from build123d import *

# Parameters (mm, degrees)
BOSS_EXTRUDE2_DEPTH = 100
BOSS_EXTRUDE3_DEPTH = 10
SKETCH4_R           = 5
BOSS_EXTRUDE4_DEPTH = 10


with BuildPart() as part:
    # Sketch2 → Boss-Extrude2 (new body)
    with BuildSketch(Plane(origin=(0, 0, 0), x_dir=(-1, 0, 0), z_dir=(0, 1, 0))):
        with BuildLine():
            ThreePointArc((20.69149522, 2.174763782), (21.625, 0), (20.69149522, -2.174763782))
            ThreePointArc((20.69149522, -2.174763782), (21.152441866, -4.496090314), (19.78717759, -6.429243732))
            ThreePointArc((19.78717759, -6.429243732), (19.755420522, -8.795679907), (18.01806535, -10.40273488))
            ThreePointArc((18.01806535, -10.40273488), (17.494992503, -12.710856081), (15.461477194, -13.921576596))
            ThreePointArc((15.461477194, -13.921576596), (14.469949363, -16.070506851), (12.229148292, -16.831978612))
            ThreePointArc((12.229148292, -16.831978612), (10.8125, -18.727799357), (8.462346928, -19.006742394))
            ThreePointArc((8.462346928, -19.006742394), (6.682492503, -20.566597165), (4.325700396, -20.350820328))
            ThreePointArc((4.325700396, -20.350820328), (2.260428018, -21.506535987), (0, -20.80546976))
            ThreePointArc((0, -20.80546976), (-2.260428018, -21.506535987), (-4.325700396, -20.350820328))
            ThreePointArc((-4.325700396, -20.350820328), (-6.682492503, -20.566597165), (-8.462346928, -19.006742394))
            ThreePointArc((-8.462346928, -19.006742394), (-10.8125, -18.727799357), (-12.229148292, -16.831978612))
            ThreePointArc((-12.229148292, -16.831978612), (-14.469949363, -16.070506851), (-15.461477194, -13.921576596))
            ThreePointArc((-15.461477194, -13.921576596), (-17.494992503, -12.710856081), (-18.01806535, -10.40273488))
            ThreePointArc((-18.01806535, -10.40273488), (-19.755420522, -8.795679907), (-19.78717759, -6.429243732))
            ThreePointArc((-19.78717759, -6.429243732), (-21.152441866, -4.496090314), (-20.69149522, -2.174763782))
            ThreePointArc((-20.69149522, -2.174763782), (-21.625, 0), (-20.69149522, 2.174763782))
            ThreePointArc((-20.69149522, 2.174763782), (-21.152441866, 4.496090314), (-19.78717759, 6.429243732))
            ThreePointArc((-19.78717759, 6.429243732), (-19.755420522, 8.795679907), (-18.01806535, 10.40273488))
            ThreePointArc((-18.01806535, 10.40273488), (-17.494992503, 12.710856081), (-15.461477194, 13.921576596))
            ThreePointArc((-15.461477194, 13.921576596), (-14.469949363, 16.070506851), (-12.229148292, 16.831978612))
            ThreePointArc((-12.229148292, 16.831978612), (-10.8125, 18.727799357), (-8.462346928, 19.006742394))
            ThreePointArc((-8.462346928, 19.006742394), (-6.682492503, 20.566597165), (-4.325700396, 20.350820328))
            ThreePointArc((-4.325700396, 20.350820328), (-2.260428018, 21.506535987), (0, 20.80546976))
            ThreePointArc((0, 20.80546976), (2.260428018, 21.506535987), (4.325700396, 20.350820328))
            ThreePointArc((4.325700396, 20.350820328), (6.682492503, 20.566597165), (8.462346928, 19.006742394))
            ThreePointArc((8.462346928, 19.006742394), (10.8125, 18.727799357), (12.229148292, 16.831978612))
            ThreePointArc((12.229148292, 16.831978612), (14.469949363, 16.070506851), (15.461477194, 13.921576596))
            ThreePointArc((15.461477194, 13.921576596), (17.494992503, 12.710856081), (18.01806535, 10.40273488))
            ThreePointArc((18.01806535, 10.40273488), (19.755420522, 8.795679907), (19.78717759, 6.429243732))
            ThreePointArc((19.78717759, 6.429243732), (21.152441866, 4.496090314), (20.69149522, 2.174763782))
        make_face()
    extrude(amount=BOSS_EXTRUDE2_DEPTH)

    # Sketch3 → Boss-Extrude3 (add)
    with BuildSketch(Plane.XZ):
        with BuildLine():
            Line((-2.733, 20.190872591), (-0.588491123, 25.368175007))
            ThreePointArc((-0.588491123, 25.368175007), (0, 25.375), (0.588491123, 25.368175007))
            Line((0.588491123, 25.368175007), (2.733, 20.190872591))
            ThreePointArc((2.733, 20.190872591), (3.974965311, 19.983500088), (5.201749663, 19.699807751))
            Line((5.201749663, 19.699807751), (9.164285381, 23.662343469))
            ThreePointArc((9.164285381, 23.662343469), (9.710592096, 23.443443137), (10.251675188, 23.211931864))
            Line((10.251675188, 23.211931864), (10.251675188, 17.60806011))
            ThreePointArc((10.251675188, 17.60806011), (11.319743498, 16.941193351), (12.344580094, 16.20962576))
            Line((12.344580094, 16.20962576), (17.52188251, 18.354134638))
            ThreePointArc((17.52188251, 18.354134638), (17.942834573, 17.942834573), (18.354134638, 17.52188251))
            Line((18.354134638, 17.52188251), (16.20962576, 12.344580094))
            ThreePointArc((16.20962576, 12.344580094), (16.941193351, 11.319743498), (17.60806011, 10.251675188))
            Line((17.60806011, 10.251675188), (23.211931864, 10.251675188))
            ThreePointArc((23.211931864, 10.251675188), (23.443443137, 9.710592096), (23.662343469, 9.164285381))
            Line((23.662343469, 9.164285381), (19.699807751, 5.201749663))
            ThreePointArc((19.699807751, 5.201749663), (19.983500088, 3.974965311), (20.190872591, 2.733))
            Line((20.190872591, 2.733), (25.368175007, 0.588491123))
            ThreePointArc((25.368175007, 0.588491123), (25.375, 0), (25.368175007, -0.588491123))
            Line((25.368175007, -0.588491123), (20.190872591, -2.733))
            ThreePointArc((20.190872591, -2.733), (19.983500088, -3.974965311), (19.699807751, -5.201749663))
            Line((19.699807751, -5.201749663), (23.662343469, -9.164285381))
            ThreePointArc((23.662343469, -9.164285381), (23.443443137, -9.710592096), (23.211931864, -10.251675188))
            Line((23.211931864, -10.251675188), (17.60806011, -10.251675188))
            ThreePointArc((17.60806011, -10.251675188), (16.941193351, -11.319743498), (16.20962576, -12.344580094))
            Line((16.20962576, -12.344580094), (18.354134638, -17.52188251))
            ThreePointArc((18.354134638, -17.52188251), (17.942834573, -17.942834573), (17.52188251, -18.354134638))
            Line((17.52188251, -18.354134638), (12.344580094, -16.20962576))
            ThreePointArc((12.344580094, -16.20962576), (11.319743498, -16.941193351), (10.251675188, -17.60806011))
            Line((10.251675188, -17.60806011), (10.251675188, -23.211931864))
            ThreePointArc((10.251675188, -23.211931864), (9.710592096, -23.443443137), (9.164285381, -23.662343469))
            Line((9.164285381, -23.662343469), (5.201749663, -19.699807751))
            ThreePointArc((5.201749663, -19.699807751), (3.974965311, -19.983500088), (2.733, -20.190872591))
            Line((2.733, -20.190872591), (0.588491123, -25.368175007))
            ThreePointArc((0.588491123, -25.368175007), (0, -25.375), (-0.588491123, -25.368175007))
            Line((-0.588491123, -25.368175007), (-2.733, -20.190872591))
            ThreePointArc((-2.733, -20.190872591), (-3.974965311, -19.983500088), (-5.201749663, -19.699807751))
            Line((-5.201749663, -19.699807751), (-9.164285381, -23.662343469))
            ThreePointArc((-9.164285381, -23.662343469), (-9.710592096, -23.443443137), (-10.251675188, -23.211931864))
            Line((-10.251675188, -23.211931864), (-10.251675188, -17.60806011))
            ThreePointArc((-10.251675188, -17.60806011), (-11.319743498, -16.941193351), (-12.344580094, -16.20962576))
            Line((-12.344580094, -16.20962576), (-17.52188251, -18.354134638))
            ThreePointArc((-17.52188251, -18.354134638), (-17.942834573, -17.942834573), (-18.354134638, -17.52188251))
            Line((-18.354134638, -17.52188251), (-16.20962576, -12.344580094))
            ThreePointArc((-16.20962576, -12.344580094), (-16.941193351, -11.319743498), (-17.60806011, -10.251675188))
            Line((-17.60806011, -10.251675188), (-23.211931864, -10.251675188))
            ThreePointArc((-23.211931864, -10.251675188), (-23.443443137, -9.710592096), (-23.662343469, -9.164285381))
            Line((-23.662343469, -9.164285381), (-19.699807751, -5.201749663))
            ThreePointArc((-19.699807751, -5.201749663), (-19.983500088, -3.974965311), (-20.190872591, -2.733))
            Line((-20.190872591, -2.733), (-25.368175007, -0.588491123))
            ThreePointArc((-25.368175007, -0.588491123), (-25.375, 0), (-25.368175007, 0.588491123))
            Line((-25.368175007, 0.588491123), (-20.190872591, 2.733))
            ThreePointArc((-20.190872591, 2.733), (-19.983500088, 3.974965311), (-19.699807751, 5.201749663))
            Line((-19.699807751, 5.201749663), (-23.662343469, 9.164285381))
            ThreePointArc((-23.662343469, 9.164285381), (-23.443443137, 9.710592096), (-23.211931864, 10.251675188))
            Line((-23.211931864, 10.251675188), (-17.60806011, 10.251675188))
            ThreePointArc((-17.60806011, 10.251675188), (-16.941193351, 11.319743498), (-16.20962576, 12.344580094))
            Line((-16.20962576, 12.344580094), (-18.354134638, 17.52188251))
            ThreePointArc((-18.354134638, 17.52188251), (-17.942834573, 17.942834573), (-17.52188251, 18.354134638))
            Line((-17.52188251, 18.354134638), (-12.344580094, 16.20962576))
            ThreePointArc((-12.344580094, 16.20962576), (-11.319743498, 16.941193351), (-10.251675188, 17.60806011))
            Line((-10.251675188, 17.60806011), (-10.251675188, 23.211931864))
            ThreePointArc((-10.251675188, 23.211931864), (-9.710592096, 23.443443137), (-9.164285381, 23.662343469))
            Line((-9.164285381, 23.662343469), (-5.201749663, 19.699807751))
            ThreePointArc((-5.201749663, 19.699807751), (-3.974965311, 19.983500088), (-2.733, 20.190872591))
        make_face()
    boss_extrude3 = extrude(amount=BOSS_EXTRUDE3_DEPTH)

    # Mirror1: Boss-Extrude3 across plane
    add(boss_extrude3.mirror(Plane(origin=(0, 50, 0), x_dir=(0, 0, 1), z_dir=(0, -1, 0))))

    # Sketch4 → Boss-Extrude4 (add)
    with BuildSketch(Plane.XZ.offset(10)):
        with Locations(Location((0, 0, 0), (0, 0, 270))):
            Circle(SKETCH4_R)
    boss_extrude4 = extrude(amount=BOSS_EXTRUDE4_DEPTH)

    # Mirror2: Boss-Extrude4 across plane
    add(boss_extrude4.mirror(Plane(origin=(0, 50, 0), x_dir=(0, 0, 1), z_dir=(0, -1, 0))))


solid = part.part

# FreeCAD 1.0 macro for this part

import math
import FreeCAD as App
import Part
import Sketcher
Q = App.Units.Quantity

doc = App.newDocument("Part")
params = doc.addObject("Spreadsheet::Sheet", "Params")
for row, (alias, value) in enumerate([
    ("sketch1_radius", "3 mm"),
    ("pad1_length", "100 mm"),
    ("pad2_length", "10 mm"),
    ("sketch3_diameter", "10 mm"),
    ("pad3_length", "10 mm"),
], start=1):
    params.set(f"A{row}", alias)
    params.set(f"B{row}", "=" + value)
    params.setAlias(f"B{row}", alias)

body = doc.addObject("PartDesign::Body", "Body")

# Sketch on XZ plane
sketch1 = body.newObject("Sketcher::SketchObject", "Sketch")
sketch1.AttachmentSupport = (doc.getObject("XZ_Plane"), [""])
sketch1.MapMode = "FlatFace"
sketch1.addGeometry(Part.ArcOfCircle(Part.Circle(App.Vector(-18.625, 0, 0), App.Vector(0, 0, 1), 3), math.radians(133.537702), math.radians(226.462298)), False)
sketch1.addGeometry(Part.ArcOfCircle(Part.Circle(App.Vector(-18.217999, 3.872355, 0), App.Vector(0, 0, 1), 3), math.radians(121.537702), math.radians(214.462298)), False)
sketch1.addGeometry(Part.ArcOfCircle(Part.Circle(App.Vector(-17.014784, 7.57547, 0), App.Vector(0, 0, 1), 3), math.radians(109.537702), math.radians(202.462298)), False)
sketch1.addGeometry(Part.ArcOfCircle(Part.Circle(App.Vector(-15.067942, 10.9475, 0), App.Vector(0, 0, 1), 3), math.radians(97.537702), math.radians(190.462298)), False)
sketch1.addGeometry(Part.ArcOfCircle(Part.Circle(App.Vector(-12.462558, 13.841072, 0), App.Vector(0, 0, 1), 3), math.radians(85.537702), math.radians(178.462298)), False)
sketch1.addGeometry(Part.ArcOfCircle(Part.Circle(App.Vector(-9.3125, 16.129723, 0), App.Vector(0, 0, 1), 3), math.radians(73.537702), math.radians(166.462298)), False)
sketch1.addGeometry(Part.ArcOfCircle(Part.Circle(App.Vector(-5.755442, 17.713428, 0), App.Vector(0, 0, 1), 3), math.radians(61.537702), math.radians(154.462298)), False)
sketch1.addGeometry(Part.ArcOfCircle(Part.Circle(App.Vector(-1.946843, 18.52297, 0), App.Vector(0, 0, 1), 3), math.radians(49.537702), math.radians(142.462298)), False)
sketch1.addGeometry(Part.ArcOfCircle(Part.Circle(App.Vector(1.946843, 18.52297, 0), App.Vector(0, 0, 1), 3), math.radians(37.537702), math.radians(130.462298)), False)
sketch1.addGeometry(Part.ArcOfCircle(Part.Circle(App.Vector(5.755442, 17.713428, 0), App.Vector(0, 0, 1), 3), math.radians(25.537702), math.radians(118.462298)), False)
sketch1.addGeometry(Part.ArcOfCircle(Part.Circle(App.Vector(9.3125, 16.129723, 0), App.Vector(0, 0, 1), 3), math.radians(13.537702), math.radians(106.462298)), False)
sketch1.addGeometry(Part.ArcOfCircle(Part.Circle(App.Vector(12.462558, 13.841072, 0), App.Vector(0, 0, 1), 3), math.radians(1.537702), math.radians(94.462298)), False)
sketch1.addGeometry(Part.ArcOfCircle(Part.Circle(App.Vector(15.067942, 10.9475, 0), App.Vector(0, 0, 1), 3), math.radians(-10.462298), math.radians(82.462298)), False)
sketch1.addGeometry(Part.ArcOfCircle(Part.Circle(App.Vector(17.014784, 7.57547, 0), App.Vector(0, 0, 1), 3), math.radians(-22.462298), math.radians(70.462298)), False)
sketch1.addGeometry(Part.ArcOfCircle(Part.Circle(App.Vector(18.217999, 3.872355, 0), App.Vector(0, 0, 1), 3), math.radians(-34.462298), math.radians(58.462298)), False)
sketch1.addGeometry(Part.ArcOfCircle(Part.Circle(App.Vector(18.625, 0, 0), App.Vector(0, 0, 1), 3), math.radians(-46.462298), math.radians(46.462298)), False)
sketch1.addGeometry(Part.ArcOfCircle(Part.Circle(App.Vector(18.217999, -3.872355, 0), App.Vector(0, 0, 1), 3), math.radians(-58.462298), math.radians(34.462298)), False)
sketch1.addGeometry(Part.ArcOfCircle(Part.Circle(App.Vector(17.014784, -7.57547, 0), App.Vector(0, 0, 1), 3), math.radians(-70.462298), math.radians(22.462298)), False)
sketch1.addGeometry(Part.ArcOfCircle(Part.Circle(App.Vector(15.067942, -10.9475, 0), App.Vector(0, 0, 1), 3), math.radians(-82.462298), math.radians(10.462298)), False)
sketch1.addGeometry(Part.ArcOfCircle(Part.Circle(App.Vector(12.462558, -13.841072, 0), App.Vector(0, 0, 1), 3), math.radians(-94.462298), math.radians(-1.537702)), False)
sketch1.addGeometry(Part.ArcOfCircle(Part.Circle(App.Vector(9.3125, -16.129723, 0), App.Vector(0, 0, 1), 3), math.radians(-106.462298), math.radians(-13.537702)), False)
sketch1.addGeometry(Part.ArcOfCircle(Part.Circle(App.Vector(5.755442, -17.713428, 0), App.Vector(0, 0, 1), 3), math.radians(-118.462298), math.radians(-25.537702)), False)
sketch1.addGeometry(Part.ArcOfCircle(Part.Circle(App.Vector(1.946843, -18.52297, 0), App.Vector(0, 0, 1), 3), math.radians(-130.462298), math.radians(-37.537702)), False)
sketch1.addGeometry(Part.ArcOfCircle(Part.Circle(App.Vector(-1.946843, -18.52297, 0), App.Vector(0, 0, 1), 3), math.radians(-142.462298), math.radians(-49.537702)), False)
sketch1.addGeometry(Part.ArcOfCircle(Part.Circle(App.Vector(-5.755442, -17.713428, 0), App.Vector(0, 0, 1), 3), math.radians(-154.462298), math.radians(-61.537702)), False)
sketch1.addGeometry(Part.ArcOfCircle(Part.Circle(App.Vector(-9.3125, -16.129723, 0), App.Vector(0, 0, 1), 3), math.radians(-166.462298), math.radians(-73.537702)), False)
sketch1.addGeometry(Part.ArcOfCircle(Part.Circle(App.Vector(-12.462558, -13.841072, 0), App.Vector(0, 0, 1), 3), math.radians(-178.462298), math.radians(-85.537702)), False)
sketch1.addGeometry(Part.ArcOfCircle(Part.Circle(App.Vector(-15.067942, -10.9475, 0), App.Vector(0, 0, 1), 3), math.radians(169.537702), math.radians(262.462298)), False)
sketch1.addGeometry(Part.ArcOfCircle(Part.Circle(App.Vector(-17.014784, -7.57547, 0), App.Vector(0, 0, 1), 3), math.radians(157.537702), math.radians(250.462298)), False)
sketch1.addGeometry(Part.ArcOfCircle(Part.Circle(App.Vector(-18.217999, -3.872355, 0), App.Vector(0, 0, 1), 3), math.radians(145.537702), math.radians(238.462298)), False)
sketch1.addConstraint(Sketcher.Constraint("Coincident", 0, 1, 1, 2))
sketch1.addConstraint(Sketcher.Constraint("Coincident", 1, 1, 2, 2))
sketch1.addConstraint(Sketcher.Constraint("Coincident", 2, 1, 3, 2))
sketch1.addConstraint(Sketcher.Constraint("Coincident", 3, 1, 4, 2))
sketch1.addConstraint(Sketcher.Constraint("Coincident", 4, 1, 5, 2))
sketch1.addConstraint(Sketcher.Constraint("Coincident", 5, 1, 6, 2))
sketch1.addConstraint(Sketcher.Constraint("Coincident", 6, 1, 7, 2))
sketch1.addConstraint(Sketcher.Constraint("Coincident", 7, 1, 8, 2))
sketch1.addConstraint(Sketcher.Constraint("Coincident", 8, 1, 9, 2))
sketch1.addConstraint(Sketcher.Constraint("Coincident", 9, 1, 10, 2))
sketch1.addConstraint(Sketcher.Constraint("Coincident", 10, 1, 11, 2))
sketch1.addConstraint(Sketcher.Constraint("Coincident", 11, 1, 12, 2))
sketch1.addConstraint(Sketcher.Constraint("Coincident", 12, 1, 13, 2))
sketch1.addConstraint(Sketcher.Constraint("Coincident", 13, 1, 14, 2))
sketch1.addConstraint(Sketcher.Constraint("Coincident", 14, 1, 15, 2))
sketch1.addConstraint(Sketcher.Constraint("Coincident", 15, 1, 16, 2))
sketch1.addConstraint(Sketcher.Constraint("Coincident", 16, 1, 17, 2))
sketch1.addConstraint(Sketcher.Constraint("Coincident", 17, 1, 18, 2))
sketch1.addConstraint(Sketcher.Constraint("Coincident", 18, 1, 19, 2))
sketch1.addConstraint(Sketcher.Constraint("Coincident", 19, 1, 20, 2))
sketch1.addConstraint(Sketcher.Constraint("Coincident", 20, 1, 21, 2))
sketch1.addConstraint(Sketcher.Constraint("Coincident", 21, 1, 22, 2))
sketch1.addConstraint(Sketcher.Constraint("Coincident", 22, 1, 23, 2))
sketch1.addConstraint(Sketcher.Constraint("Coincident", 23, 1, 24, 2))
sketch1.addConstraint(Sketcher.Constraint("Coincident", 24, 1, 25, 2))
sketch1.addConstraint(Sketcher.Constraint("Coincident", 25, 1, 26, 2))
sketch1.addConstraint(Sketcher.Constraint("Coincident", 26, 1, 27, 2))
sketch1.addConstraint(Sketcher.Constraint("Coincident", 27, 1, 28, 2))
sketch1.addConstraint(Sketcher.Constraint("Coincident", 28, 1, 29, 2))
sketch1.addConstraint(Sketcher.Constraint("Coincident", 29, 1, 0, 2))
sketch1.addConstraint(Sketcher.Constraint("Equal", 0, 1))
sketch1.addConstraint(Sketcher.Constraint("Equal", 1, 2))
sketch1.addConstraint(Sketcher.Constraint("Equal", 2, 3))
sketch1.addConstraint(Sketcher.Constraint("Equal", 3, 4))
sketch1.addConstraint(Sketcher.Constraint("Equal", 4, 5))
sketch1.addConstraint(Sketcher.Constraint("Equal", 5, 6))
sketch1.addConstraint(Sketcher.Constraint("Equal", 6, 7))
sketch1.addConstraint(Sketcher.Constraint("Equal", 7, 8))
sketch1.addConstraint(Sketcher.Constraint("Equal", 8, 9))
sketch1.addConstraint(Sketcher.Constraint("Equal", 9, 10))
sketch1.addConstraint(Sketcher.Constraint("Equal", 10, 11))
sketch1.addConstraint(Sketcher.Constraint("Equal", 11, 12))
sketch1.addConstraint(Sketcher.Constraint("Equal", 12, 13))
sketch1.addConstraint(Sketcher.Constraint("Equal", 13, 14))
sketch1.addConstraint(Sketcher.Constraint("Equal", 14, 15))
sketch1.addConstraint(Sketcher.Constraint("Equal", 15, 16))
sketch1.addConstraint(Sketcher.Constraint("Equal", 16, 17))
sketch1.addConstraint(Sketcher.Constraint("Equal", 17, 18))
sketch1.addConstraint(Sketcher.Constraint("Equal", 18, 19))
sketch1.addConstraint(Sketcher.Constraint("Equal", 19, 20))
sketch1.addConstraint(Sketcher.Constraint("Equal", 20, 21))
sketch1.addConstraint(Sketcher.Constraint("Equal", 21, 22))
sketch1.addConstraint(Sketcher.Constraint("Equal", 22, 23))
sketch1.addConstraint(Sketcher.Constraint("Equal", 23, 24))
sketch1.addConstraint(Sketcher.Constraint("Equal", 24, 25))
sketch1.addConstraint(Sketcher.Constraint("Equal", 25, 26))
sketch1.addConstraint(Sketcher.Constraint("Equal", 26, 27))
sketch1.addConstraint(Sketcher.Constraint("Equal", 27, 28))
sketch1.addConstraint(Sketcher.Constraint("Equal", 28, 29))
sketch1.addConstraint(Sketcher.Constraint("Symmetric", 0, 3, 15, 3, -1, 1))
sketch1.addConstraint(Sketcher.Constraint("Symmetric", 1, 3, 16, 3, -1, 1))
sketch1.addConstraint(Sketcher.Constraint("Symmetric", 2, 3, 17, 3, -1, 1))
sketch1.addConstraint(Sketcher.Constraint("Symmetric", 3, 3, 18, 3, -1, 1))
sketch1.addConstraint(Sketcher.Constraint("Symmetric", 4, 3, 19, 3, -1, 1))
sketch1.addConstraint(Sketcher.Constraint("Symmetric", 5, 3, 20, 3, -1, 1))
sketch1.addConstraint(Sketcher.Constraint("Symmetric", 6, 3, 21, 3, -1, 1))
sketch1.addConstraint(Sketcher.Constraint("Symmetric", 7, 3, 22, 3, -1, 1))
sketch1.addConstraint(Sketcher.Constraint("Symmetric", 8, 3, 23, 3, -1, 1))
sketch1.addConstraint(Sketcher.Constraint("Symmetric", 9, 3, 24, 3, -1, 1))
sketch1.addConstraint(Sketcher.Constraint("Symmetric", 10, 3, 25, 3, -1, 1))
sketch1.addConstraint(Sketcher.Constraint("Symmetric", 11, 3, 26, 3, -1, 1))
sketch1.addConstraint(Sketcher.Constraint("Symmetric", 12, 3, 27, 3, -1, 1))
sketch1.addConstraint(Sketcher.Constraint("Symmetric", 13, 3, 28, 3, -1, 1))
sketch1.addConstraint(Sketcher.Constraint("Symmetric", 14, 3, 29, 3, -1, 1))
sketch1.addConstraint(Sketcher.Constraint("Symmetric", 7, 3, 8, 3, -2))
sketch1.addConstraint(Sketcher.Constraint("Symmetric", 6, 3, 9, 3, -2))
sketch1.addConstraint(Sketcher.Constraint("Symmetric", 5, 3, 10, 3, -2))
sketch1.addConstraint(Sketcher.Constraint("Symmetric", 4, 3, 11, 3, -2))
sketch1.addConstraint(Sketcher.Constraint("Symmetric", 3, 3, 12, 3, -2))
sketch1.addConstraint(Sketcher.Constraint("Symmetric", 2, 3, 13, 3, -2))
sketch1.addConstraint(Sketcher.Constraint("Symmetric", 1, 3, 14, 3, -2))
sketch1.addConstraint(Sketcher.Constraint("PointOnObject", 0, 3, -1))
sketch1.addConstraint(Sketcher.Constraint("Radius", 0, Q("3 mm")))
sketch1.addConstraint(Sketcher.Constraint("DistanceX", 0, 3, -1, 1, Q("18.625 mm")))
sketch1.addConstraint(Sketcher.Constraint("DistanceX", 1, 3, -1, 1, Q("18.217999 mm")))
sketch1.addConstraint(Sketcher.Constraint("DistanceX", 4, 3, 9, 3, Q("18.217999 mm")))
sketch1.addConstraint(Sketcher.Constraint("DistanceX", 5, 3, 10, 3, Q("18.625 mm")))
sketch1.addConstraint(Sketcher.Constraint("DistanceY", -1, 1, 3, 3, Q("10.9475 mm")))
sketch1.addConstraint(Sketcher.Constraint("DistanceX", 6, 1, -1, 1, Q("4.3257 mm")))
sketch1.addConstraint(Sketcher.Constraint("DistanceX", 3, 3, 6, 3, Q("9.3125 mm")))
sketch1.addConstraint(Sketcher.Constraint("DistanceX", 6, 3, 7, 3, Q("3.808599 mm")))
sketch1.addConstraint(Sketcher.Constraint("DistanceY", 2, 3, 7, 3, Q("10.9475 mm")))
sketch1.addConstraint(Sketcher.Constraint("DistanceX", 4, 1, 5, 1, Q("3.766801 mm")))
sketch1.addConstraint(Sketcher.Constraint("DistanceY", 8, 3, 7, 1, Q("2.282499 mm")))
sketch1.addConstraint(Sketcher.Constraint("DistanceY", -1, 1, 2, 3, Q("7.57547 mm")))
sketch1.addConstraint(Sketcher.Constraint("DistanceX", 4, 1, -1, 1, Q("12.229148 mm")))
sketch1.addConstraint(Sketcher.Constraint("DistanceX", 2, 3, 7, 3, Q("15.067942 mm")))
sketch1.addConstraint(Sketcher.Constraint("DistanceY", 16, 3, 14, 3, Q("7.74471 mm")))
sketch1.setExpression("Constraints[82]", "Params.sketch1_radius")
pad1 = body.newObject("PartDesign::Pad", "Pad")
pad1.Profile = sketch1
pad1.setExpression("Length", "Params.pad1_length")
pad1.Reversed = True

# Sketch on XZ plane
sketch2 = body.newObject("Sketcher::SketchObject", "Sketch001")
sketch2.AttachmentSupport = (doc.getObject("XZ_Plane"), [""])
sketch2.MapMode = "FlatFace"
sketch2.addGeometry(Part.LineSegment(App.Vector(-0.588491, 25.368175, 0), App.Vector(-2.733, 20.190873, 0)), False)
sketch2.addGeometry(Part.ArcOfCircle(Part.Circle(App.Vector(0, 0, 0), App.Vector(0, 0, 1), 20.375), math.radians(97.708602), math.radians(104.791398)), False)
sketch2.addGeometry(Part.LineSegment(App.Vector(-5.20175, 19.699808, 0), App.Vector(-9.164285, 23.662343, 0)), False)
sketch2.addGeometry(Part.ArcOfCircle(Part.Circle(App.Vector(0.000001, -0.000002, 0), App.Vector(0, 0, 1), 25.375002), math.radians(111.17109), math.radians(113.828909)), False)
sketch2.addGeometry(Part.LineSegment(App.Vector(-10.251675, 23.211932, 0), App.Vector(-10.251675, 17.60806, 0)), False)
sketch2.addGeometry(Part.ArcOfCircle(Part.Circle(App.Vector(0, 0, 0), App.Vector(0, 0, 1), 20.375), math.radians(120.208602), math.radians(127.291398)), False)
sketch2.addGeometry(Part.LineSegment(App.Vector(-12.34458, 16.209626, 0), App.Vector(-17.521883, 18.354135, 0)), False)
sketch2.addGeometry(Part.ArcOfCircle(Part.Circle(App.Vector(-0.000001, 0.000001, 0), App.Vector(0, 0, 1), 25.374998), math.radians(133.67109), math.radians(136.32891)), False)
sketch2.addGeometry(Part.LineSegment(App.Vector(-18.354135, 17.521883, 0), App.Vector(-16.209626, 12.34458, 0)), False)
sketch2.addGeometry(Part.ArcOfCircle(Part.Circle(App.Vector(0, 0, 0), App.Vector(0, 0, 1), 20.375), math.radians(142.708602), math.radians(149.791398)), False)
sketch2.addGeometry(Part.LineSegment(App.Vector(-17.60806, 10.251675, 0), App.Vector(-23.211932, 10.251675, 0)), False)
sketch2.addGeometry(Part.ArcOfCircle(Part.Circle(App.Vector(0.000002, -0.000001, 0), App.Vector(0, 0, 1), 25.375002), math.radians(156.171091), math.radians(158.82891)), False)
sketch2.addGeometry(Part.LineSegment(App.Vector(-23.662343, 9.164285, 0), App.Vector(-19.699808, 5.20175, 0)), False)
sketch2.addGeometry(Part.ArcOfCircle(Part.Circle(App.Vector(0, 0, 0), App.Vector(0, 0, 1), 20.375), math.radians(165.208602), math.radians(172.291398)), False)
sketch2.addGeometry(Part.LineSegment(App.Vector(-20.190873, 2.733, 0), App.Vector(-25.368175, 0.588491, 0)), False)
sketch2.addGeometry(Part.ArcOfCircle(Part.Circle(App.Vector(-0.000001, 0, 0), App.Vector(0, 0, 1), 25.374999), math.radians(178.67109), math.radians(181.32891)), False)
sketch2.addGeometry(Part.LineSegment(App.Vector(-25.368175, -0.588491, 0), App.Vector(-20.190873, -2.733, 0)), False)
sketch2.addGeometry(Part.ArcOfCircle(Part.Circle(App.Vector(0, 0, 0), App.Vector(0, 0, 1), 20.375), math.radians(-172.291398), math.radians(-165.208602)), False)
sketch2.addGeometry(Part.LineSegment(App.Vector(-19.699808, -5.20175, 0), App.Vector(-23.662343, -9.164285, 0)), False)
sketch2.addGeometry(Part.ArcOfCircle(Part.Circle(App.Vector(0.000002, 0.000001, 0), App.Vector(0, 0, 1), 25.375002), math.radians(-158.82891), math.radians(-156.171091)), False)
sketch2.addGeometry(Part.LineSegment(App.Vector(-23.211932, -10.251675, 0), App.Vector(-17.60806, -10.251675, 0)), False)
sketch2.addGeometry(Part.ArcOfCircle(Part.Circle(App.Vector(0, 0, 0), App.Vector(0, 0, 1), 20.375), math.radians(-149.791398), math.radians(-142.708602)), False)
sketch2.addGeometry(Part.LineSegment(App.Vector(-16.209626, -12.34458, 0), App.Vector(-18.354135, -17.521883, 0)), False)
sketch2.addGeometry(Part.ArcOfCircle(Part.Circle(App.Vector(-0.000001, -0.000001, 0), App.Vector(0, 0, 1), 25.374998), math.radians(-136.32891), math.radians(-133.67109)), False)
sketch2.addGeometry(Part.LineSegment(App.Vector(-17.521883, -18.354135, 0), App.Vector(-12.34458, -16.209626, 0)), False)
sketch2.addGeometry(Part.ArcOfCircle(Part.Circle(App.Vector(0, 0, 0), App.Vector(0, 0, 1), 20.375), math.radians(-127.291398), math.radians(-120.208602)), False)
sketch2.addGeometry(Part.LineSegment(App.Vector(-10.251675, -17.60806, 0), App.Vector(-10.251675, -23.211932, 0)), False)
sketch2.addGeometry(Part.ArcOfCircle(Part.Circle(App.Vector(0.000001, 0.000002, 0), App.Vector(0, 0, 1), 25.375002), math.radians(-113.828909), math.radians(-111.17109)), False)
sketch2.addGeometry(Part.LineSegment(App.Vector(-9.164285, -23.662343, 0), App.Vector(-5.20175, -19.699808, 0)), False)
sketch2.addGeometry(Part.ArcOfCircle(Part.Circle(App.Vector(0, 0, 0), App.Vector(0, 0, 1), 20.375), math.radians(-104.791398), math.radians(-97.708602)), False)
sketch2.addGeometry(Part.LineSegment(App.Vector(-2.733, -20.190873, 0), App.Vector(-0.588491, -25.368175, 0)), False)
sketch2.addGeometry(Part.ArcOfCircle(Part.Circle(App.Vector(0, -0.000001, 0), App.Vector(0, 0, 1), 25.374999), math.radians(-91.32891), math.radians(-88.67109)), False)
sketch2.addGeometry(Part.LineSegment(App.Vector(0.588491, -25.368175, 0), App.Vector(2.733, -20.190873, 0)), False)
sketch2.addGeometry(Part.ArcOfCircle(Part.Circle(App.Vector(0, 0, 0), App.Vector(0, 0, 1), 20.375), math.radians(-82.291398), math.radians(-75.208602)), False)
sketch2.addGeometry(Part.LineSegment(App.Vector(5.20175, -19.699808, 0), App.Vector(9.164285, -23.662343, 0)), False)
sketch2.addGeometry(Part.ArcOfCircle(Part.Circle(App.Vector(-0.000001, 0.000002, 0), App.Vector(0, 0, 1), 25.375002), math.radians(-68.82891), math.radians(-66.171091)), False)
sketch2.addGeometry(Part.LineSegment(App.Vector(10.251675, -23.211932, 0), App.Vector(10.251675, -17.60806, 0)), False)
sketch2.addGeometry(Part.ArcOfCircle(Part.Circle(App.Vector(0, 0, 0), App.Vector(0, 0, 1), 20.375), math.radians(-59.791398), math.radians(-52.708602)), False)
sketch2.addGeometry(Part.LineSegment(App.Vector(12.34458, -16.209626, 0), App.Vector(17.521883, -18.354135, 0)), False)
sketch2.addGeometry(Part.ArcOfCircle(Part.Circle(App.Vector(0.000001, -0.000001, 0), App.Vector(0, 0, 1), 25.374998), math.radians(-46.32891), math.radians(-43.67109)), False)
sketch2.addGeometry(Part.LineSegment(App.Vector(18.354135, -17.521883, 0), App.Vector(16.209626, -12.34458, 0)), False)
sketch2.addGeometry(Part.ArcOfCircle(Part.Circle(App.Vector(0, 0, 0), App.Vector(0, 0, 1), 20.375), math.radians(-37.291398), math.radians(-30.208602)), False)
sketch2.addGeometry(Part.LineSegment(App.Vector(17.60806, -10.251675, 0), App.Vector(23.211932, -10.251675, 0)), False)
sketch2.addGeometry(Part.ArcOfCircle(Part.Circle(App.Vector(-0.000002, 0.000001, 0), App.Vector(0, 0, 1), 25.375002), math.radians(-23.828909), math.radians(-21.17109)), False)
sketch2.addGeometry(Part.LineSegment(App.Vector(23.662343, -9.164285, 0), App.Vector(19.699808, -5.20175, 0)), False)
sketch2.addGeometry(Part.ArcOfCircle(Part.Circle(App.Vector(0, 0, 0), App.Vector(0, 0, 1), 20.375), math.radians(-14.791398), math.radians(-7.708602)), False)
sketch2.addGeometry(Part.LineSegment(App.Vector(20.190873, -2.733, 0), App.Vector(25.368175, -0.588491, 0)), False)
sketch2.addGeometry(Part.ArcOfCircle(Part.Circle(App.Vector(0.000001, 0, 0), App.Vector(0, 0, 1), 25.374999), math.radians(-1.32891), math.radians(1.32891)), False)
sketch2.addGeometry(Part.LineSegment(App.Vector(25.368175, 0.588491, 0), App.Vector(20.190873, 2.733, 0)), False)
sketch2.addGeometry(Part.ArcOfCircle(Part.Circle(App.Vector(0, 0, 0), App.Vector(0, 0, 1), 20.375), math.radians(7.708602), math.radians(14.791398)), False)
sketch2.addGeometry(Part.LineSegment(App.Vector(19.699808, 5.20175, 0), App.Vector(23.662343, 9.164285, 0)), False)
sketch2.addGeometry(Part.ArcOfCircle(Part.Circle(App.Vector(-0.000002, -0.000001, 0), App.Vector(0, 0, 1), 25.375002), math.radians(21.17109), math.radians(23.828909)), False)
sketch2.addGeometry(Part.LineSegment(App.Vector(23.211932, 10.251675, 0), App.Vector(17.60806, 10.251675, 0)), False)
sketch2.addGeometry(Part.ArcOfCircle(Part.Circle(App.Vector(0, 0, 0), App.Vector(0, 0, 1), 20.375), math.radians(30.208602), math.radians(37.291398)), False)
sketch2.addGeometry(Part.LineSegment(App.Vector(16.209626, 12.34458, 0), App.Vector(18.354135, 17.521883, 0)), False)
sketch2.addGeometry(Part.ArcOfCircle(Part.Circle(App.Vector(0.000001, 0.000001, 0), App.Vector(0, 0, 1), 25.374998), math.radians(43.67109), math.radians(46.32891)), False)
sketch2.addGeometry(Part.LineSegment(App.Vector(17.521883, 18.354135, 0), App.Vector(12.34458, 16.209626, 0)), False)
sketch2.addGeometry(Part.ArcOfCircle(Part.Circle(App.Vector(0, 0, 0), App.Vector(0, 0, 1), 20.375), math.radians(52.708602), math.radians(59.791398)), False)
sketch2.addGeometry(Part.LineSegment(App.Vector(10.251675, 17.60806, 0), App.Vector(10.251675, 23.211932, 0)), False)
sketch2.addGeometry(Part.ArcOfCircle(Part.Circle(App.Vector(-0.000001, -0.000002, 0), App.Vector(0, 0, 1), 25.375002), math.radians(66.171091), math.radians(68.82891)), False)
sketch2.addGeometry(Part.LineSegment(App.Vector(9.164285, 23.662343, 0), App.Vector(5.20175, 19.699808, 0)), False)
sketch2.addGeometry(Part.ArcOfCircle(Part.Circle(App.Vector(0, 0, 0), App.Vector(0, 0, 1), 20.375), math.radians(75.208602), math.radians(82.291398)), False)
sketch2.addGeometry(Part.LineSegment(App.Vector(2.733, 20.190873, 0), App.Vector(0.588491, 25.368175, 0)), False)
sketch2.addGeometry(Part.ArcOfCircle(Part.Circle(App.Vector(0, 0.000001, 0), App.Vector(0, 0, 1), 25.374999), math.radians(88.67109), math.radians(91.32891)), False)
sketch2.addConstraint(Sketcher.Constraint("Coincident", 0, 2, 1, 1))
sketch2.addConstraint(Sketcher.Constraint("Coincident", 1, 2, 2, 1))
sketch2.addConstraint(Sketcher.Constraint("Coincident", 2, 2, 3, 1))
sketch2.addConstraint(Sketcher.Constraint("Coincident", 3, 2, 4, 1))
sketch2.addConstraint(Sketcher.Constraint("Coincident", 4, 2, 5, 1))
sketch2.addConstraint(Sketcher.Constraint("Coincident", 5, 2, 6, 1))
sketch2.addConstraint(Sketcher.Constraint("Coincident", 6, 2, 7, 1))
sketch2.addConstraint(Sketcher.Constraint("Coincident", 7, 2, 8, 1))
sketch2.addConstraint(Sketcher.Constraint("Coincident", 8, 2, 9, 1))
sketch2.addConstraint(Sketcher.Constraint("Coincident", 9, 2, 10, 1))
sketch2.addConstraint(Sketcher.Constraint("Coincident", 10, 2, 11, 1))
sketch2.addConstraint(Sketcher.Constraint("Coincident", 11, 2, 12, 1))
sketch2.addConstraint(Sketcher.Constraint("Coincident", 12, 2, 13, 1))
sketch2.addConstraint(Sketcher.Constraint("Coincident", 13, 2, 14, 1))
sketch2.addConstraint(Sketcher.Constraint("Coincident", 14, 2, 15, 1))
sketch2.addConstraint(Sketcher.Constraint("Coincident", 15, 2, 16, 1))
sketch2.addConstraint(Sketcher.Constraint("Coincident", 16, 2, 17, 1))
sketch2.addConstraint(Sketcher.Constraint("Coincident", 17, 2, 18, 1))
sketch2.addConstraint(Sketcher.Constraint("Coincident", 18, 2, 19, 1))
sketch2.addConstraint(Sketcher.Constraint("Coincident", 19, 2, 20, 1))
sketch2.addConstraint(Sketcher.Constraint("Coincident", 20, 2, 21, 1))
sketch2.addConstraint(Sketcher.Constraint("Coincident", 21, 2, 22, 1))
sketch2.addConstraint(Sketcher.Constraint("Coincident", 22, 2, 23, 1))
sketch2.addConstraint(Sketcher.Constraint("Coincident", 23, 2, 24, 1))
sketch2.addConstraint(Sketcher.Constraint("Coincident", 24, 2, 25, 1))
sketch2.addConstraint(Sketcher.Constraint("Coincident", 25, 2, 26, 1))
sketch2.addConstraint(Sketcher.Constraint("Coincident", 26, 2, 27, 1))
sketch2.addConstraint(Sketcher.Constraint("Coincident", 27, 2, 28, 1))
sketch2.addConstraint(Sketcher.Constraint("Coincident", 28, 2, 29, 1))
sketch2.addConstraint(Sketcher.Constraint("Coincident", 29, 2, 30, 1))
sketch2.addConstraint(Sketcher.Constraint("Coincident", 30, 2, 31, 1))
sketch2.addConstraint(Sketcher.Constraint("Coincident", 31, 2, 32, 1))
sketch2.addConstraint(Sketcher.Constraint("Coincident", 32, 2, 33, 1))
sketch2.addConstraint(Sketcher.Constraint("Coincident", 33, 2, 34, 1))
sketch2.addConstraint(Sketcher.Constraint("Coincident", 34, 2, 35, 1))
sketch2.addConstraint(Sketcher.Constraint("Coincident", 35, 2, 36, 1))
sketch2.addConstraint(Sketcher.Constraint("Coincident", 36, 2, 37, 1))
sketch2.addConstraint(Sketcher.Constraint("Coincident", 37, 2, 38, 1))
sketch2.addConstraint(Sketcher.Constraint("Coincident", 38, 2, 39, 1))
sketch2.addConstraint(Sketcher.Constraint("Coincident", 39, 2, 40, 1))
sketch2.addConstraint(Sketcher.Constraint("Coincident", 40, 2, 41, 1))
sketch2.addConstraint(Sketcher.Constraint("Coincident", 41, 2, 42, 1))
sketch2.addConstraint(Sketcher.Constraint("Coincident", 42, 2, 43, 1))
sketch2.addConstraint(Sketcher.Constraint("Coincident", 43, 2, 44, 1))
sketch2.addConstraint(Sketcher.Constraint("Coincident", 44, 2, 45, 1))
sketch2.addConstraint(Sketcher.Constraint("Coincident", 45, 2, 46, 1))
sketch2.addConstraint(Sketcher.Constraint("Coincident", 46, 2, 47, 1))
sketch2.addConstraint(Sketcher.Constraint("Coincident", 47, 2, 48, 1))
sketch2.addConstraint(Sketcher.Constraint("Coincident", 48, 2, 49, 1))
sketch2.addConstraint(Sketcher.Constraint("Coincident", 49, 2, 50, 1))
sketch2.addConstraint(Sketcher.Constraint("Coincident", 50, 2, 51, 1))
sketch2.addConstraint(Sketcher.Constraint("Coincident", 51, 2, 52, 1))
sketch2.addConstraint(Sketcher.Constraint("Coincident", 52, 2, 53, 1))
sketch2.addConstraint(Sketcher.Constraint("Coincident", 53, 2, 54, 1))
sketch2.addConstraint(Sketcher.Constraint("Coincident", 54, 2, 55, 1))
sketch2.addConstraint(Sketcher.Constraint("Coincident", 55, 2, 56, 1))
sketch2.addConstraint(Sketcher.Constraint("Coincident", 56, 2, 57, 1))
sketch2.addConstraint(Sketcher.Constraint("Coincident", 57, 2, 58, 1))
sketch2.addConstraint(Sketcher.Constraint("Coincident", 58, 2, 59, 1))
sketch2.addConstraint(Sketcher.Constraint("Coincident", 59, 2, 60, 1))
sketch2.addConstraint(Sketcher.Constraint("Coincident", 60, 2, 61, 1))
sketch2.addConstraint(Sketcher.Constraint("Coincident", 61, 2, 62, 1))
sketch2.addConstraint(Sketcher.Constraint("Coincident", 62, 2, 63, 1))
sketch2.addConstraint(Sketcher.Constraint("Coincident", 63, 2, 0, 1))
sketch2.addConstraint(Sketcher.Constraint("Vertical", 4))
sketch2.addConstraint(Sketcher.Constraint("Horizontal", 10))
sketch2.addConstraint(Sketcher.Constraint("Horizontal", 20))
sketch2.addConstraint(Sketcher.Constraint("Vertical", 26))
sketch2.addConstraint(Sketcher.Constraint("Vertical", 36))
sketch2.addConstraint(Sketcher.Constraint("Horizontal", 42))
sketch2.addConstraint(Sketcher.Constraint("Horizontal", 52))
sketch2.addConstraint(Sketcher.Constraint("Vertical", 58))
sketch2.addConstraint(Sketcher.Constraint("Coincident", 1, 3, -1, 1))
sketch2.addConstraint(Sketcher.Constraint("Coincident", 3, 3, -1, 1))
sketch2.addConstraint(Sketcher.Constraint("Coincident", 5, 3, -1, 1))
sketch2.addConstraint(Sketcher.Constraint("Coincident", 7, 3, -1, 1))
sketch2.addConstraint(Sketcher.Constraint("Coincident", 9, 3, -1, 1))
sketch2.addConstraint(Sketcher.Constraint("Coincident", 11, 3, -1, 1))
sketch2.addConstraint(Sketcher.Constraint("Coincident", 13, 3, -1, 1))
sketch2.addConstraint(Sketcher.Constraint("Coincident", 15, 3, -1, 1))
sketch2.addConstraint(Sketcher.Constraint("Coincident", 17, 3, -1, 1))
sketch2.addConstraint(Sketcher.Constraint("Coincident", 19, 3, -1, 1))
sketch2.addConstraint(Sketcher.Constraint("Coincident", 21, 3, -1, 1))
sketch2.addConstraint(Sketcher.Constraint("Coincident", 23, 3, -1, 1))
sketch2.addConstraint(Sketcher.Constraint("Coincident", 25, 3, -1, 1))
sketch2.addConstraint(Sketcher.Constraint("Coincident", 27, 3, -1, 1))
sketch2.addConstraint(Sketcher.Constraint("Coincident", 29, 3, -1, 1))
sketch2.addConstraint(Sketcher.Constraint("Coincident", 31, 3, -1, 1))
sketch2.addConstraint(Sketcher.Constraint("Coincident", 33, 3, -1, 1))
sketch2.addConstraint(Sketcher.Constraint("Coincident", 35, 3, -1, 1))
sketch2.addConstraint(Sketcher.Constraint("Coincident", 37, 3, -1, 1))
sketch2.addConstraint(Sketcher.Constraint("Coincident", 39, 3, -1, 1))
sketch2.addConstraint(Sketcher.Constraint("Coincident", 41, 3, -1, 1))
sketch2.addConstraint(Sketcher.Constraint("Coincident", 43, 3, -1, 1))
sketch2.addConstraint(Sketcher.Constraint("Coincident", 45, 3, -1, 1))
sketch2.addConstraint(Sketcher.Constraint("Coincident", 47, 3, -1, 1))
sketch2.addConstraint(Sketcher.Constraint("Coincident", 49, 3, -1, 1))
sketch2.addConstraint(Sketcher.Constraint("Coincident", 51, 3, -1, 1))
sketch2.addConstraint(Sketcher.Constraint("Coincident", 53, 3, -1, 1))
sketch2.addConstraint(Sketcher.Constraint("Coincident", 55, 3, -1, 1))
sketch2.addConstraint(Sketcher.Constraint("Coincident", 57, 3, -1, 1))
sketch2.addConstraint(Sketcher.Constraint("Coincident", 59, 3, -1, 1))
sketch2.addConstraint(Sketcher.Constraint("Coincident", 61, 3, -1, 1))
sketch2.addConstraint(Sketcher.Constraint("Coincident", 63, 3, -1, 1))
sketch2.addConstraint(Sketcher.Constraint("Radius", 1, Q("20.375 mm")))
sketch2.addConstraint(Sketcher.Constraint("Radius", 5, Q("20.375 mm")))
sketch2.addConstraint(Sketcher.Constraint("Radius", 7, Q("25.374998 mm")))
sketch2.addConstraint(Sketcher.Constraint("Radius", 9, Q("20.375 mm")))
sketch2.addConstraint(Sketcher.Constraint("Radius", 13, Q("20.375 mm")))
sketch2.addConstraint(Sketcher.Constraint("Radius", 15, Q("25.374999 mm")))
sketch2.addConstraint(Sketcher.Constraint("Radius", 17, Q("20.375 mm")))
sketch2.addConstraint(Sketcher.Constraint("Radius", 21, Q("20.375 mm")))
sketch2.addConstraint(Sketcher.Constraint("Radius", 23, Q("25.374998 mm")))
sketch2.addConstraint(Sketcher.Constraint("Radius", 25, Q("20.375 mm")))
sketch2.addConstraint(Sketcher.Constraint("Radius", 29, Q("20.375 mm")))
sketch2.addConstraint(Sketcher.Constraint("Radius", 31, Q("25.374999 mm")))
sketch2.addConstraint(Sketcher.Constraint("Radius", 33, Q("20.375 mm")))
sketch2.addConstraint(Sketcher.Constraint("Radius", 37, Q("20.375 mm")))
sketch2.addConstraint(Sketcher.Constraint("Radius", 39, Q("25.374998 mm")))
sketch2.addConstraint(Sketcher.Constraint("Radius", 41, Q("20.375 mm")))
sketch2.addConstraint(Sketcher.Constraint("Radius", 45, Q("20.375 mm")))
sketch2.addConstraint(Sketcher.Constraint("Radius", 47, Q("25.374999 mm")))
sketch2.addConstraint(Sketcher.Constraint("Radius", 49, Q("20.375 mm")))
sketch2.addConstraint(Sketcher.Constraint("Radius", 53, Q("20.375 mm")))
sketch2.addConstraint(Sketcher.Constraint("Radius", 55, Q("25.374998 mm")))
sketch2.addConstraint(Sketcher.Constraint("Radius", 57, Q("20.375 mm")))
sketch2.addConstraint(Sketcher.Constraint("Radius", 61, Q("20.375 mm")))
sketch2.addConstraint(Sketcher.Constraint("Radius", 63, Q("25.374999 mm")))
sketch2.addConstraint(Sketcher.Constraint("DistanceX", 0, 2, -1, 1, Q("2.733 mm")))
sketch2.addConstraint(Sketcher.Constraint("DistanceY", -1, 1, 13, 2, Q("2.733 mm")))
sketch2.addConstraint(Sketcher.Constraint("DistanceY", 16, 2, -1, 1, Q("2.733 mm")))
sketch2.addConstraint(Sketcher.Constraint("DistanceX", 29, 2, -1, 1, Q("2.733 mm")))
sketch2.addConstraint(Sketcher.Constraint("DistanceX", -1, 1, 32, 2, Q("2.733 mm")))
sketch2.addConstraint(Sketcher.Constraint("DistanceY", 45, 2, -1, 1, Q("2.733 mm")))
sketch2.addConstraint(Sketcher.Constraint("DistanceY", -1, 1, 48, 2, Q("2.733 mm")))
sketch2.addConstraint(Sketcher.Constraint("DistanceX", -1, 1, 61, 2, Q("2.733 mm")))
sketch2.addConstraint(Sketcher.Constraint("Radius", 3, Q("25.375002 mm")))
sketch2.addConstraint(Sketcher.Constraint("Radius", 11, Q("25.375002 mm")))
sketch2.addConstraint(Sketcher.Constraint("Radius", 19, Q("25.375002 mm")))
sketch2.addConstraint(Sketcher.Constraint("Radius", 27, Q("25.375002 mm")))
sketch2.addConstraint(Sketcher.Constraint("Radius", 35, Q("25.375002 mm")))
sketch2.addConstraint(Sketcher.Constraint("Radius", 43, Q("25.375002 mm")))
sketch2.addConstraint(Sketcher.Constraint("Radius", 51, Q("25.375002 mm")))
sketch2.addConstraint(Sketcher.Constraint("Radius", 59, Q("25.375002 mm")))
sketch2.addConstraint(Sketcher.Constraint("DistanceX", 10, 2, 10, 1, Q("5.603872 mm")))
sketch2.addConstraint(Sketcher.Constraint("DistanceX", 20, 1, 20, 2, Q("5.603872 mm")))
sketch2.addConstraint(Sketcher.Constraint("DistanceX", 42, 1, 42, 2, Q("5.603872 mm")))
sketch2.addConstraint(Sketcher.Constraint("DistanceX", 52, 2, 52, 1, Q("5.603872 mm")))
sketch2.addConstraint(Sketcher.Constraint("DistanceY", 4, 2, 4, 1, Q("5.603872 mm")))
sketch2.addConstraint(Sketcher.Constraint("DistanceY", 26, 2, 26, 1, Q("5.603872 mm")))
sketch2.addConstraint(Sketcher.Constraint("DistanceY", 36, 1, 36, 2, Q("5.603872 mm")))
sketch2.addConstraint(Sketcher.Constraint("DistanceY", 58, 1, 58, 2, Q("5.603872 mm")))
sketch2.addConstraint(Sketcher.Constraint("Distance", 0, Q("5.603872 mm")))
sketch2.addConstraint(Sketcher.Constraint("Distance", 2, Q("5.603872 mm")))
sketch2.addConstraint(Sketcher.Constraint("Distance", 6, Q("5.603872 mm")))
sketch2.addConstraint(Sketcher.Constraint("Distance", 8, Q("5.603872 mm")))
sketch2.addConstraint(Sketcher.Constraint("Distance", 12, Q("5.603872 mm")))
sketch2.addConstraint(Sketcher.Constraint("Distance", 14, Q("5.603872 mm")))
sketch2.addConstraint(Sketcher.Constraint("Distance", 16, Q("5.603872 mm")))
sketch2.addConstraint(Sketcher.Constraint("Distance", 18, Q("5.603872 mm")))
sketch2.addConstraint(Sketcher.Constraint("Distance", 22, Q("5.603872 mm")))
sketch2.addConstraint(Sketcher.Constraint("Distance", 24, Q("5.603872 mm")))
sketch2.addConstraint(Sketcher.Constraint("Distance", 28, Q("5.603872 mm")))
sketch2.addConstraint(Sketcher.Constraint("Distance", 30, Q("5.603872 mm")))
sketch2.addConstraint(Sketcher.Constraint("Distance", 32, Q("5.603872 mm")))
sketch2.addConstraint(Sketcher.Constraint("Distance", 34, Q("5.603872 mm")))
sketch2.addConstraint(Sketcher.Constraint("Distance", 38, Q("5.603872 mm")))
sketch2.addConstraint(Sketcher.Constraint("Distance", 40, Q("5.603872 mm")))
sketch2.addConstraint(Sketcher.Constraint("Distance", 44, Q("5.603872 mm")))
sketch2.addConstraint(Sketcher.Constraint("Distance", 46, Q("5.603872 mm")))
sketch2.addConstraint(Sketcher.Constraint("Distance", 48, Q("5.603872 mm")))
sketch2.addConstraint(Sketcher.Constraint("Distance", 50, Q("5.603872 mm")))
sketch2.addConstraint(Sketcher.Constraint("Distance", 54, Q("5.603872 mm")))
sketch2.addConstraint(Sketcher.Constraint("Distance", 56, Q("5.603872 mm")))
sketch2.addConstraint(Sketcher.Constraint("Distance", 60, Q("5.603872 mm")))
sketch2.addConstraint(Sketcher.Constraint("Distance", 62, Q("5.603872 mm")))
sketch2.addConstraint(Sketcher.Constraint("DistanceX", 1, 2, -1, 1, Q("5.20175 mm")))
sketch2.addConstraint(Sketcher.Constraint("DistanceX", 5, 2, -1, 1, Q("12.34458 mm")))
sketch2.addConstraint(Sketcher.Constraint("DistanceY", -1, 1, 8, 2, Q("12.34458 mm")))
sketch2.addConstraint(Sketcher.Constraint("DistanceY", -1, 1, 12, 2, Q("5.20175 mm")))
sketch2.addConstraint(Sketcher.Constraint("DistanceY", 17, 2, -1, 1, Q("5.20175 mm")))
sketch2.addConstraint(Sketcher.Constraint("DistanceY", 21, 2, -1, 1, Q("12.34458 mm")))
sketch2.addConstraint(Sketcher.Constraint("DistanceX", 24, 2, -1, 1, Q("12.34458 mm")))
sketch2.addConstraint(Sketcher.Constraint("DistanceX", 28, 2, -1, 1, Q("5.20175 mm")))
sketch2.addConstraint(Sketcher.Constraint("DistanceX", -1, 1, 33, 2, Q("5.20175 mm")))
sketch2.addConstraint(Sketcher.Constraint("DistanceX", -1, 1, 37, 2, Q("12.34458 mm")))
sketch2.addConstraint(Sketcher.Constraint("DistanceY", 40, 2, -1, 1, Q("12.34458 mm")))
sketch2.addConstraint(Sketcher.Constraint("DistanceY", 44, 2, -1, 1, Q("5.20175 mm")))
sketch2.addConstraint(Sketcher.Constraint("DistanceY", -1, 1, 49, 2, Q("5.20175 mm")))
sketch2.addConstraint(Sketcher.Constraint("DistanceY", -1, 1, 53, 2, Q("12.34458 mm")))
sketch2.addConstraint(Sketcher.Constraint("DistanceX", -1, 1, 56, 2, Q("12.34458 mm")))
sketch2.addConstraint(Sketcher.Constraint("DistanceX", -1, 1, 60, 2, Q("5.20175 mm")))
pad2 = body.newObject("PartDesign::Pad", "Pad001")
pad2.Profile = sketch2
pad2.setExpression("Length", "Params.pad2_length")
doc.recompute()

datumplane = body.newObject("PartDesign::Plane", "DatumPlane")
datumplane.AttachmentSupport = (doc.getObject("XZ_Plane"), [""])
datumplane.MapMode = "FlatFace"
datumplane.AttachmentOffset = App.Placement(App.Vector(0, 0, -50), App.Rotation())
mirrored = body.newObject("PartDesign::Mirrored", "Mirrored")
mirrored.Originals = [pad2]
mirrored.MirrorPlane = (datumplane, [""])
body.Tip = mirrored

# Sketch on XZ plane
sketch3 = body.newObject("Sketcher::SketchObject", "Sketch002")
sketch3.AttachmentSupport = (doc.getObject("XZ_Plane"), [""])
sketch3.MapMode = "FlatFace"
sketch3.AttachmentOffset = App.Placement(App.Vector(0, 0, 10), App.Rotation())
sketch3.addGeometry(Part.Circle(App.Vector(0, 0, 0), App.Vector(0, 0, 1), 5), False)
sketch3.addConstraint(Sketcher.Constraint("Coincident", 0, 3, -1, 1))
sketch3.addConstraint(Sketcher.Constraint("Diameter", 0, Q("10 mm")))
sketch3.setExpression("Constraints[1]", "Params.sketch3_diameter")
pad3 = body.newObject("PartDesign::Pad", "Pad002")
pad3.Profile = sketch3
pad3.setExpression("Length", "Params.pad3_length")
doc.recompute()

datumplane2 = body.newObject("PartDesign::Plane", "DatumPlane001")
datumplane2.AttachmentSupport = (doc.getObject("XZ_Plane"), [""])
datumplane2.MapMode = "FlatFace"
datumplane2.AttachmentOffset = App.Placement(App.Vector(0, 0, -50), App.Rotation())
mirrored2 = body.newObject("PartDesign::Mirrored", "Mirrored001")
mirrored2.Originals = [pad3]
mirrored2.MirrorPlane = (datumplane2, [""])
body.Tip = mirrored2

doc.recompute()
